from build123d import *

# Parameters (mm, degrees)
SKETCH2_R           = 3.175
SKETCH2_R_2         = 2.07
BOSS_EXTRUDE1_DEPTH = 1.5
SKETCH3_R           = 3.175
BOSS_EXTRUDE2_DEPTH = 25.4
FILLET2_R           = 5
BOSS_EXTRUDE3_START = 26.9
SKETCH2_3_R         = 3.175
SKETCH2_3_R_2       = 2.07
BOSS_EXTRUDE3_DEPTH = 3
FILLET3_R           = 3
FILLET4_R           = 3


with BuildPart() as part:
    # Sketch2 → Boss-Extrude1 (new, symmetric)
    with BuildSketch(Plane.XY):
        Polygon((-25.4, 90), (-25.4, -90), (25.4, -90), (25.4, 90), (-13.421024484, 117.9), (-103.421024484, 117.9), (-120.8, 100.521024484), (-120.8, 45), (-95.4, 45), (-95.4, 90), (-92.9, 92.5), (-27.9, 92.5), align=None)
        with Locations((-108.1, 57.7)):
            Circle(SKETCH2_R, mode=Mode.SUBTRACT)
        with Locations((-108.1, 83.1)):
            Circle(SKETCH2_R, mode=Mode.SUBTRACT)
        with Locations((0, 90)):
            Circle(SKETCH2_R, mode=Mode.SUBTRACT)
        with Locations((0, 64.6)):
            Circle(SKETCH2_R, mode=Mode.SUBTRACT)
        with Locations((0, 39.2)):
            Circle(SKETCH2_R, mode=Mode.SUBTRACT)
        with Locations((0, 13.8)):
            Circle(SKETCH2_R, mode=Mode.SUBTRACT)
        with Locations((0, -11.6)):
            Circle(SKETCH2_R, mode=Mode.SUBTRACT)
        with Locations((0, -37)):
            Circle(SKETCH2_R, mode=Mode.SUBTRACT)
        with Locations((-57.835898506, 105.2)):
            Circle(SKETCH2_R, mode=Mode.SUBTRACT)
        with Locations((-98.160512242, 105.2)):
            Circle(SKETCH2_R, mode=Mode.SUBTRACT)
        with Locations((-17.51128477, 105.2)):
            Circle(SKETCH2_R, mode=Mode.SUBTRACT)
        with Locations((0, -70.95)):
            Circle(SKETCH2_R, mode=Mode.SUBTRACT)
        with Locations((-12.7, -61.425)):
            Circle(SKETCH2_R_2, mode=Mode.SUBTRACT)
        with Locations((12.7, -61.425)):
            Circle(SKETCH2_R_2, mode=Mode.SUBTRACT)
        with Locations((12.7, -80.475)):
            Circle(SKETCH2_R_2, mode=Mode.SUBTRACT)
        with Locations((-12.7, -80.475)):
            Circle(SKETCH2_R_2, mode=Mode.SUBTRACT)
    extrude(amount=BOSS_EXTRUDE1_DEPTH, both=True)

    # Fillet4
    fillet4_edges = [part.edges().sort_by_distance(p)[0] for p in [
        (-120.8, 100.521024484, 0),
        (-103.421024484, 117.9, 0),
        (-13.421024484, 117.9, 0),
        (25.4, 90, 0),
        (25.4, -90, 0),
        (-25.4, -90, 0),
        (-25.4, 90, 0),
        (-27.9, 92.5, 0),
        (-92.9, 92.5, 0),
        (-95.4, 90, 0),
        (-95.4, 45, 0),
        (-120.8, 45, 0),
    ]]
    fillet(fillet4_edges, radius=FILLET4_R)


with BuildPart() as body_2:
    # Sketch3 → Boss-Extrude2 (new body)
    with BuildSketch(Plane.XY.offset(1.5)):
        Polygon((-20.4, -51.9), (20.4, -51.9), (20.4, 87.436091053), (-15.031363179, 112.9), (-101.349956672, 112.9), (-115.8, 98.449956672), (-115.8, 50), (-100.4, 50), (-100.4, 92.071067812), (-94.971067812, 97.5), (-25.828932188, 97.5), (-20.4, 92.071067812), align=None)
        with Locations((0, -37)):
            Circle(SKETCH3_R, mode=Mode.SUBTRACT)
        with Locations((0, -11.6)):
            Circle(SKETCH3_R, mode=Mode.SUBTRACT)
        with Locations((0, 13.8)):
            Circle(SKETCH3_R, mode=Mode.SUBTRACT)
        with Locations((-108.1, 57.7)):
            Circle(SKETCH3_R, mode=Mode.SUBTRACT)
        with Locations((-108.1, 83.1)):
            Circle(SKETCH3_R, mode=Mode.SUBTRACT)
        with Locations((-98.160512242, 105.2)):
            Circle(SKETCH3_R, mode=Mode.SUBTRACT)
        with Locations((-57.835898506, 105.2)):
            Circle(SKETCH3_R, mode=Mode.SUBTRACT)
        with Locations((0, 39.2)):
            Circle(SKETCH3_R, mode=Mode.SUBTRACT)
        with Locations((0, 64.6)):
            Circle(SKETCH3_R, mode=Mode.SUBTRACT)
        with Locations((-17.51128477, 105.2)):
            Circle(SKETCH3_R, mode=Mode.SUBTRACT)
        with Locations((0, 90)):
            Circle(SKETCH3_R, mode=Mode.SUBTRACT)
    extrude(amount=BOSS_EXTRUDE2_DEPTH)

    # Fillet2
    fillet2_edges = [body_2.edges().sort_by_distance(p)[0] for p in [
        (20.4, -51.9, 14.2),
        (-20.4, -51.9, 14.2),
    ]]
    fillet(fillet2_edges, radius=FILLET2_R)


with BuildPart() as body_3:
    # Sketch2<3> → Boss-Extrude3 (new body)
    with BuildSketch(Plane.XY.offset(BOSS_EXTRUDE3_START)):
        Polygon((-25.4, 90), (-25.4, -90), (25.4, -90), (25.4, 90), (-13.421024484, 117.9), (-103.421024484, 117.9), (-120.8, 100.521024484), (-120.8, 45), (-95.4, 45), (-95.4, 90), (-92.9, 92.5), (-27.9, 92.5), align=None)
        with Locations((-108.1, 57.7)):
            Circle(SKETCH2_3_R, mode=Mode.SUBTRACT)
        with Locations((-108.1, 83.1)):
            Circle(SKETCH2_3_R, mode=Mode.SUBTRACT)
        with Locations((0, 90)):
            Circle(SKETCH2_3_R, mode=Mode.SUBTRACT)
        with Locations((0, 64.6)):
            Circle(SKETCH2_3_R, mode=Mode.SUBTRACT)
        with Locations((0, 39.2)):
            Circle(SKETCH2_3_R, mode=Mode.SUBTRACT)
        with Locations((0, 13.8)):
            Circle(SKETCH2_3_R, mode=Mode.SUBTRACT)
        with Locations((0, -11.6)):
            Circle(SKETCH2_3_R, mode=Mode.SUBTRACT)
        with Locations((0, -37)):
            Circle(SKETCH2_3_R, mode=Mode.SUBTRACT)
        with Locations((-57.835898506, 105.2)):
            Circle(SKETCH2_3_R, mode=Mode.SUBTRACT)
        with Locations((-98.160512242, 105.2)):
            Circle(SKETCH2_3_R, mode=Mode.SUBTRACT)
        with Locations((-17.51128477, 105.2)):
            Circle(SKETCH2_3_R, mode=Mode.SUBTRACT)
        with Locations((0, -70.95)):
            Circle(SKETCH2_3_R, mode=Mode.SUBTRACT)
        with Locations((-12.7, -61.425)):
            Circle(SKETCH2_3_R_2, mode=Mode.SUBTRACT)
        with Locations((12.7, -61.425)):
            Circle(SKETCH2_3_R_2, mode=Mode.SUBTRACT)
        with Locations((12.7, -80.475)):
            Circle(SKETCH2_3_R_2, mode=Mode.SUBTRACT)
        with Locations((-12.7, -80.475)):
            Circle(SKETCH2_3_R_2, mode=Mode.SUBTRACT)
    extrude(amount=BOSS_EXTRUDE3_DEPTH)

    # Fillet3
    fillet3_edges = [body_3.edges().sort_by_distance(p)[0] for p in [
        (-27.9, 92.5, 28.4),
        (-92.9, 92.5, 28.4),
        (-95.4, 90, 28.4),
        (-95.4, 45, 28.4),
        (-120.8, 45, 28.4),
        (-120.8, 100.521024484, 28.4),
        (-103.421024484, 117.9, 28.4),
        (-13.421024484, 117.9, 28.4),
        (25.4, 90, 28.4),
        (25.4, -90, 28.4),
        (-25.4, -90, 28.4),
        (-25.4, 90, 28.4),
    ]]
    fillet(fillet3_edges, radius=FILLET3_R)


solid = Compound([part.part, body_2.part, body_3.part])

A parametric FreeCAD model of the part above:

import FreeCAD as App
import Part
import Sketcher


def edges_at(feature, points):
    """Names of the edges that pass closest to the given points."""
    edges = feature.Shape.Edges
    near = lambda p: min(range(len(edges)), key=lambda i: edges[i].distToShape(Part.Vertex(*p))[0])
    return sorted({f"Edge{near(p) + 1}" for p in points})


def add_polygon(sketch, points):
    """Adds a closed chain of lines whose ends are joined by coincident constraints."""
    first, n = sketch.GeometryCount, len(points)
    for a, b in zip(points, points[1:] + points[:1]):
        sketch.addGeometry(Part.LineSegment(App.Vector(*a, 0), App.Vector(*b, 0)), False)
    for i in range(n):
        sketch.addConstraint(Sketcher.Constraint("Coincident", first + i, 2, first + (i + 1) % n, 1))

doc = App.newDocument("Part")
body = doc.addObject("PartDesign::Body", "Body")

# Sketch on XY plane
sketch1 = body.newObject("Sketcher::SketchObject", "Sketch")
sketch1.AttachmentSupport = (doc.getObject("XY_Plane"), [""])
sketch1.MapMode = "FlatFace"
add_polygon(sketch1, [(-25.4, 90), (-25.4, -90), (25.4, -90), (25.4, 90), (-13.4, 117.9), (-103.4, 117.9), (-120.8, 100.5), (-120.8, 45), (-95.4, 45), (-95.4, 90), (-92.9, 92.5), (-27.9, 92.5)])  # lines 0-11
sketch1.addGeometry(Part.Circle(App.Vector(-12.7, -80.5, 0), App.Vector(0, 0, 1), 2.1), False)  # 12
sketch1.addGeometry(Part.Circle(App.Vector(-12.7, -61.4, 0), App.Vector(0, 0, 1), 2.1), False)  # 13
sketch1.addGeometry(Part.Circle(App.Vector(0, -71, 0), App.Vector(0, 0, 1), 3.2), False)  # 14
sketch1.addGeometry(Part.Circle(App.Vector(12.7, -80.5, 0), App.Vector(0, 0, 1), 2.1), False)  # 15
sketch1.addGeometry(Part.Circle(App.Vector(12.7, -61.4, 0), App.Vector(0, 0, 1), 2.1), False)  # 16
sketch1.addGeometry(Part.Circle(App.Vector(0, -37, 0), App.Vector(0, 0, 1), 3.2), False)  # 17
sketch1.addGeometry(Part.Circle(App.Vector(0, -11.6, 0), App.Vector(0, 0, 1), 3.2), False)  # 18
sketch1.addGeometry(Part.Circle(App.Vector(-108.1, 57.7, 0), App.Vector(0, 0, 1), 3.2), False)  # 19
sketch1.addGeometry(Part.Circle(App.Vector(-108.1, 83.1, 0), App.Vector(0, 0, 1), 3.2), False)  # 20
sketch1.addGeometry(Part.Circle(App.Vector(-98.2, 105.2, 0), App.Vector(0, 0, 1), 3.2), False)  # 21
sketch1.addGeometry(Part.Circle(App.Vector(-57.8, 105.2, 0), App.Vector(0, 0, 1), 3.2), False)  # 22
sketch1.addGeometry(Part.Circle(App.Vector(0, 13.8, 0), App.Vector(0, 0, 1), 3.2), False)  # 23
sketch1.addGeometry(Part.Circle(App.Vector(0, 39.2, 0), App.Vector(0, 0, 1), 3.2), False)  # 24
sketch1.addGeometry(Part.Circle(App.Vector(-17.5, 105.2, 0), App.Vector(0, 0, 1), 3.2), False)  # 25
sketch1.addGeometry(Part.Circle(App.Vector(0, 64.6, 0), App.Vector(0, 0, 1), 3.2), False)  # 26
sketch1.addGeometry(Part.Circle(App.Vector(0, 90, 0), App.Vector(0, 0, 1), 3.2), False)  # 27
sketch1.addConstraint(Sketcher.Constraint("Vertical", 0))
sketch1.addConstraint(Sketcher.Constraint("Horizontal", 1))
sketch1.addConstraint(Sketcher.Constraint("Vertical", 2))
sketch1.addConstraint(Sketcher.Constraint("Horizontal", 4))
sketch1.addConstraint(Sketcher.Constraint("Vertical", 6))
sketch1.addConstraint(Sketcher.Constraint("Horizontal", 7))
sketch1.addConstraint(Sketcher.Constraint("Vertical", 8))
sketch1.addConstraint(Sketcher.Constraint("Horizontal", 10))
sketch1.addConstraint(Sketcher.Constraint("Equal", 12, 13))
sketch1.addConstraint(Sketcher.Constraint("Equal", 13, 15))
sketch1.addConstraint(Sketcher.Constraint("Equal", 15, 16))
sketch1.addConstraint(Sketcher.Constraint("Equal", 14, 17))
sketch1.addConstraint(Sketcher.Constraint("Equal", 17, 18))
sketch1.addConstraint(Sketcher.Constraint("Equal", 18, 19))
sketch1.addConstraint(Sketcher.Constraint("Equal", 19, 20))
sketch1.addConstraint(Sketcher.Constraint("Equal", 20, 21))
sketch1.addConstraint(Sketcher.Constraint("Equal", 21, 22))
sketch1.addConstraint(Sketcher.Constraint("Equal", 22, 23))
sketch1.addConstraint(Sketcher.Constraint("Equal", 23, 24))
sketch1.addConstraint(Sketcher.Constraint("Equal", 24, 25))
sketch1.addConstraint(Sketcher.Constraint("Equal", 25, 26))
sketch1.addConstraint(Sketcher.Constraint("Equal", 26, 27))
sketch1.addConstraint(Sketcher.Constraint("Symmetric", 0, 2, 2, 2, -1, 1))
sketch1.addConstraint(Sketcher.Constraint("Symmetric", 12, 3, 15, 3, -2))
sketch1.addConstraint(Sketcher.Constraint("Symmetric", 13, 3, 16, 3, -2))
sketch1.addConstraint(Sketcher.Constraint("PointOnObject", 14, 3, -2))
sketch1.addConstraint(Sketcher.Constraint("PointOnObject", 17, 3, -2))
sketch1.addConstraint(Sketcher.Constraint("PointOnObject", 18, 3, -2))
sketch1.addConstraint(Sketcher.Constraint("PointOnObject", 23, 3, -2))
sketch1.addConstraint(Sketcher.Constraint("PointOnObject", 24, 3, -2))
sketch1.addConstraint(Sketcher.Constraint("PointOnObject", 26, 3, -2))
sketch1.addConstraint(Sketcher.Constraint("PointOnObject", 27, 3, -2))
sketch1.addConstraint(Sketcher.Constraint("Parallel", 5, 9))
sketch1.addConstraint(Sketcher.Constraint("Perpendicular", 9, 11))
sketch1.addConstraint(Sketcher.Constraint("Horizontal", 21, 3, 22, 3))
sketch1.addConstraint(Sketcher.Constraint("Horizontal", 22, 3, 25, 3))
sketch1.addConstraint(Sketcher.Constraint("Horizontal", 27, 3, 2, 2))
sketch1.addConstraint(Sketcher.Constraint("Horizontal", 2, 2, 8, 2))
sketch1.addConstraint(Sketcher.Constraint("Horizontal", 8, 2, 11, 2))
sketch1.addConstraint(Sketcher.Constraint("Vertical", 12, 3, 13, 3))
sketch1.addConstraint(Sketcher.Constraint("Vertical", 19, 3, 20, 3))
sketch1.addConstraint(Sketcher.Constraint("Equal", 9, 11))
sketch1.addConstraint(Sketcher.Constraint("Diameter", 12, 4.14))
sketch1.addConstraint(Sketcher.Constraint("Diameter", 14, 6.35))
sketch1.addConstraint(Sketcher.Constraint("DistanceX", 4, 2, 4, 1, 90.0))
sketch1.addConstraint(Sketcher.Constraint("DistanceX", 10, 1, 10, 2, 65.0))
sketch1.addConstraint(Sketcher.Constraint("DistanceY", 0, 2, 0, 1, 180.0))
sketch1.addConstraint(Sketcher.Constraint("DistanceY", 8, 1, 8, 2, 45.0))
sketch1.addConstraint(Sketcher.Constraint("DistanceX", 1, 1, 1, 2, 50.8))
sketch1.addConstraint(Sketcher.Constraint("DistanceX", 7, 1, 7, 2, 25.4))
sketch1.addConstraint(Sketcher.Constraint("DistanceY", 17, 3, -1, 1, 37.0))
sketch1.addConstraint(Sketcher.Constraint("DistanceY", 24, 3, 22, 3, 66.0))
sketch1.addConstraint(Sketcher.Constraint("DistanceX", 12, 3, -1, 1, 12.7))
sketch1.addConstraint(Sketcher.Constraint("DistanceY", 18, 3, -1, 1, 11.6))
sketch1.addConstraint(Sketcher.Constraint("DistanceX", 19, 3, -1, 1, 108.1))
sketch1.addConstraint(Sketcher.Constraint("DistanceY", -1, 1, 19, 3, 57.7))
sketch1.addConstraint(Sketcher.Constraint("DistanceY", -1, 1, 20, 3, 83.1))
sketch1.addConstraint(Sketcher.Constraint("DistanceY", -1, 1, 21, 3, 105.2))
sketch1.addConstraint(Sketcher.Constraint("DistanceY", -1, 1, 23, 3, 13.8))
sketch1.addConstraint(Sketcher.Constraint("DistanceY", -1, 1, 26, 3, 64.6))
sketch1.addConstraint(Sketcher.Constraint("DistanceY", -1, 1, 3, 2, 117.9))
sketch1.addConstraint(Sketcher.Constraint("DistanceX", 5, 2, -1, 1, 120.8))
sketch1.addConstraint(Sketcher.Constraint("DistanceY", 14, 3, -1, 1, 70.95))
sketch1.addConstraint(Sketcher.Constraint("DistanceY", 12, 3, 13, 3, 19.05))
sketch1.addConstraint(Sketcher.Constraint("DistanceY", 12, 3, -1, 1, 80.475))
sketch1.addConstraint(Sketcher.Constraint("DistanceX", 22, 3, -1, 1, 57.835899))
sketch1.addConstraint(Sketcher.Constraint("DistanceY", 6, 2, 6, 1, 55.521024))
sketch1.addConstraint(Sketcher.Constraint("DistanceX", 25, 3, 3, 2, 4.09026))
sketch1.addConstraint(Sketcher.Constraint("DistanceX", 21, 3, -1, 1, 98.160512))
pad1 = body.newObject("PartDesign::Pad", "Pad")
pad1.Profile = sketch1
pad1.Length = 3
pad1.Midplane = True
doc.recompute()

fillet = body.newObject("PartDesign::Fillet", "Fillet")
fillet.Base = (pad1, edges_at(pad1, [
    (-120.8, 100.521, 0),
    (-103.421, 117.9, 0),
    (-13.421, 117.9, 0),
    (25.4, 90, 0),
    (25.4, -90, 0),
    (-25.4, -90, 0),
    (-25.4, 90, 0),
    (-27.9, 92.5, 0),
    (-92.9, 92.5, 0),
    (-95.4, 90, 0),
    (-95.4, 45, 0),
    (-120.8, 45, 0),
]))
fillet.Radius = 3
body2 = doc.addObject("PartDesign::Body", "Body001")

# Sketch on XY plane
sketch2 = body2.newObject("Sketcher::SketchObject", "Sketch001")
sketch2.AttachmentSupport = (doc.getObject("XY_Plane001"), [""])
sketch2.MapMode = "FlatFace"
sketch2.AttachmentOffset = App.Placement(App.Vector(0, 0, 1.5), App.Rotation())
add_polygon(sketch2, [(-20.4, -51.9), (20.4, -51.9), (20.4, 87.4), (-15, 112.9), (-101.3, 112.9), (-115.8, 98.4), (-115.8, 50), (-100.4, 50), (-100.4, 92.1), (-95, 97.5), (-25.8, 97.5), (-20.4, 92.1)])  # lines 0-11
sketch2.addGeometry(Part.Circle(App.Vector(0, -37, 0), App.Vector(0, 0, 1), 3.2), False)  # 12
sketch2.addGeometry(Part.Circle(App.Vector(0, -11.6, 0), App.Vector(0, 0, 1), 3.2), False)  # 13
sketch2.addGeometry(Part.Circle(App.Vector(0, 13.8, 0), App.Vector(0, 0, 1), 3.2), False)  # 14
sketch2.addGeometry(Part.Circle(App.Vector(-108.1, 57.7, 0), App.Vector(0, 0, 1), 3.2), False)  # 15
sketch2.addGeometry(Part.Circle(App.Vector(-108.1, 83.1, 0), App.Vector(0, 0, 1), 3.2), False)  # 16
sketch2.addGeometry(Part.Circle(App.Vector(-98.2, 105.2, 0), App.Vector(0, 0, 1), 3.2), False)  # 17
sketch2.addGeometry(Part.Circle(App.Vector(-57.8, 105.2, 0), App.Vector(0, 0, 1), 3.2), False)  # 18
sketch2.addGeometry(Part.Circle(App.Vector(0, 39.2, 0), App.Vector(0, 0, 1), 3.2), False)  # 19
sketch2.addGeometry(Part.Circle(App.Vector(0, 64.6, 0), App.Vector(0, 0, 1), 3.2), False)  # 20
sketch2.addGeometry(Part.Circle(App.Vector(-17.5, 105.2, 0), App.Vector(0, 0, 1), 3.2), False)  # 21
sketch2.addGeometry(Part.Circle(App.Vector(0, 90, 0), App.Vector(0, 0, 1), 3.2), False)  # 22
sketch2.addConstraint(Sketcher.Constraint("Horizontal", 0))
sketch2.addConstraint(Sketcher.Constraint("Vertical", 1))
sketch2.addConstraint(Sketcher.Constraint("Horizontal", 3))
sketch2.addConstraint(Sketcher.Constraint("Vertical", 5))
sketch2.addConstraint(Sketcher.Constraint("Horizontal", 6))
sketch2.addConstraint(Sketcher.Constraint("Vertical", 7))
sketch2.addConstraint(Sketcher.Constraint("Horizontal", 9))
sketch2.addConstraint(Sketcher.Constraint("Vertical", 11))
sketch2.addConstraint(Sketcher.Constraint("Equal", 12, 13))
sketch2.addConstraint(Sketcher.Constraint("Equal", 13, 14))
sketch2.addConstraint(Sketcher.Constraint("Equal", 14, 15))
sketch2.addConstraint(Sketcher.Constraint("Equal", 15, 16))
sketch2.addConstraint(Sketcher.Constraint("Equal", 16, 17))
sketch2.addConstraint(Sketcher.Constraint("Equal", 17, 18))
sketch2.addConstraint(Sketcher.Constraint("Equal", 18, 19))
sketch2.addConstraint(Sketcher.Constraint("Equal", 19, 20))
sketch2.addConstraint(Sketcher.Constraint("Equal", 20, 21))
sketch2.addConstraint(Sketcher.Constraint("Equal", 21, 22))
sketch2.addConstraint(Sketcher.Constraint("PointOnObject", 12, 3, -2))
sketch2.addConstraint(Sketcher.Constraint("PointOnObject", 13, 3, -2))
sketch2.addConstraint(Sketcher.Constraint("PointOnObject", 14, 3, -2))
sketch2.addConstraint(Sketcher.Constraint("PointOnObject", 19, 3, -2))
sketch2.addConstraint(Sketcher.Constraint("PointOnObject", 20, 3, -2))
sketch2.addConstraint(Sketcher.Constraint("PointOnObject", 22, 3, -2))
sketch2.addConstraint(Sketcher.Constraint("Parallel", 4, 8))
sketch2.addConstraint(Sketcher.Constraint("Perpendicular", 8, 10))
sketch2.addConstraint(Sketcher.Constraint("Horizontal", 17, 3, 18, 3))
sketch2.addConstraint(Sketcher.Constraint("Horizontal", 18, 3, 21, 3))
sketch2.addConstraint(Sketcher.Constraint("Horizontal", 7, 2, 10, 2))
sketch2.addConstraint(Sketcher.Constraint("Vertical", 15, 3, 16, 3))
sketch2.addConstraint(Sketcher.Constraint("Equal", 8, 10))
sketch2.addConstraint(Sketcher.Constraint("Diameter", 12, 6.35))
sketch2.addConstraint(Sketcher.Constraint("DistanceX", 0, 1, 0, 2, 40.8))
sketch2.addConstraint(Sketcher.Constraint("DistanceX", 6, 1, 6, 2, 15.4))
sketch2.addConstraint(Sketcher.Constraint("DistanceY", 12, 3, -1, 1, 37.0))
sketch2.addConstraint(Sketcher.Constraint("DistanceY", -1, 1, 22, 3, 90.0))
sketch2.addConstraint(Sketcher.Constraint("DistanceY", -1, 1, 5, 2, 50.0))
sketch2.addConstraint(Sketcher.Constraint("DistanceY", 19, 3, 18, 3, 66.0))
sketch2.addConstraint(Sketcher.Constraint("DistanceY", 13, 3, -1, 1, 11.6))
sketch2.addConstraint(Sketcher.Constraint("DistanceY", -1, 1, 14, 3, 13.8))
sketch2.addConstraint(Sketcher.Constraint("DistanceX", 15, 3, -1, 1, 108.1))
sketch2.addConstraint(Sketcher.Constraint("DistanceY", -1, 1, 15, 3, 57.7))
sketch2.addConstraint(Sketcher.Constraint("DistanceY", -1, 1, 16, 3, 83.1))
sketch2.addConstraint(Sketcher.Constraint("DistanceY", -1, 1, 17, 3, 105.2))
sketch2.addConstraint(Sketcher.Constraint("DistanceY", -1, 1, 20, 3, 64.6))
sketch2.addConstraint(Sketcher.Constraint("DistanceX", -1, 1, 0, 2, 20.4))
sketch2.addConstraint(Sketcher.Constraint("DistanceY", 0, 2, -1, 1, 51.9))
sketch2.addConstraint(Sketcher.Constraint("DistanceY", -1, 1, 2, 2, 112.9))
sketch2.addConstraint(Sketcher.Constraint("DistanceX", 4, 2, -1, 1, 115.8))
sketch2.addConstraint(Sketcher.Constraint("DistanceY", -1, 1, 8, 2, 97.5))
sketch2.addConstraint(Sketcher.Constraint("DistanceY", 1, 1, 1, 2, 139.336091))
sketch2.addConstraint(Sketcher.Constraint("DistanceX", 18, 3, -1, 1, 57.835899))
sketch2.addConstraint(Sketcher.Constraint("Distance", 8, 7.67767))
sketch2.addConstraint(Sketcher.Constraint("DistanceX", 3, 2, 3, 1, 86.318593))
sketch2.addConstraint(Sketcher.Constraint("DistanceY", 5, 2, 5, 1, 48.449957))
sketch2.addConstraint(Sketcher.Constraint("DistanceX", 21, 3, 2, 2, 2.479922))
sketch2.addConstraint(Sketcher.Constraint("DistanceX", 17, 3, -1, 1, 98.160512))
pad2 = body2.newObject("PartDesign::Pad", "Pad001")
pad2.Profile = sketch2
pad2.Length = 25.4
doc.recompute()

fillet2 = body2.newObject("PartDesign::Fillet", "Fillet001")
fillet2.Base = (pad2, edges_at(pad2, [(20.4, -51.9, 14.2), (-20.4, -51.9, 14.2)]))
fillet2.Radius = 5
body3 = doc.addObject("PartDesign::Body", "Body002")

# Sketch on XY plane
sketch3 = body3.newObject("Sketcher::SketchObject", "Sketch002")
sketch3.AttachmentSupport = (doc.getObject("XY_Plane002"), [""])
sketch3.MapMode = "FlatFace"
sketch3.AttachmentOffset = App.Placement(App.Vector(0, 0, 26.9), App.Rotation())
add_polygon(sketch3, [(-25.4, 90), (-25.4, -90), (25.4, -90), (25.4, 90), (-13.4, 117.9), (-103.4, 117.9), (-120.8, 100.5), (-120.8, 45), (-95.4, 45), (-95.4, 90), (-92.9, 92.5), (-27.9, 92.5)])  # lines 0-11
sketch3.addGeometry(Part.Circle(App.Vector(-12.7, -80.5, 0), App.Vector(0, 0, 1), 2.1), False)  # 12
sketch3.addGeometry(Part.Circle(App.Vector(-12.7, -61.4, 0), App.Vector(0, 0, 1), 2.1), False)  # 13
sketch3.addGeometry(Part.Circle(App.Vector(0, -71, 0), App.Vector(0, 0, 1), 3.2), False)  # 14
sketch3.addGeometry(Part.Circle(App.Vector(12.7, -80.5, 0), App.Vector(0, 0, 1), 2.1), False)  # 15
sketch3.addGeometry(Part.Circle(App.Vector(12.7, -61.4, 0), App.Vector(0, 0, 1), 2.1), False)  # 16
sketch3.addGeometry(Part.Circle(App.Vector(0, -37, 0), App.Vector(0, 0, 1), 3.2), False)  # 17
sketch3.addGeometry(Part.Circle(App.Vector(0, -11.6, 0), App.Vector(0, 0, 1), 3.2), False)  # 18
sketch3.addGeometry(Part.Circle(App.Vector(-108.1, 57.7, 0), App.Vector(0, 0, 1), 3.2), False)  # 19
sketch3.addGeometry(Part.Circle(App.Vector(-108.1, 83.1, 0), App.Vector(0, 0, 1), 3.2), False)  # 20
sketch3.addGeometry(Part.Circle(App.Vector(-98.2, 105.2, 0), App.Vector(0, 0, 1), 3.2), False)  # 21
sketch3.addGeometry(Part.Circle(App.Vector(-57.8, 105.2, 0), App.Vector(0, 0, 1), 3.2), False)  # 22
sketch3.addGeometry(Part.Circle(App.Vector(0, 13.8, 0), App.Vector(0, 0, 1), 3.2), False)  # 23
sketch3.addGeometry(Part.Circle(App.Vector(0, 39.2, 0), App.Vector(0, 0, 1), 3.2), False)  # 24
sketch3.addGeometry(Part.Circle(App.Vector(-17.5, 105.2, 0), App.Vector(0, 0, 1), 3.2), False)  # 25
sketch3.addGeometry(Part.Circle(App.Vector(0, 64.6, 0), App.Vector(0, 0, 1), 3.2), False)  # 26
sketch3.addGeometry(Part.Circle(App.Vector(0, 90, 0), App.Vector(0, 0, 1), 3.2), False)  # 27
sketch3.addConstraint(Sketcher.Constraint("Vertical", 0))
sketch3.addConstraint(Sketcher.Constraint("Horizontal", 1))
sketch3.addConstraint(Sketcher.Constraint("Vertical", 2))
sketch3.addConstraint(Sketcher.Constraint("Horizontal", 4))
sketch3.addConstraint(Sketcher.Constraint("Vertical", 6))
sketch3.addConstraint(Sketcher.Constraint("Horizontal", 7))
sketch3.addConstraint(Sketcher.Constraint("Vertical", 8))
sketch3.addConstraint(Sketcher.Constraint("Horizontal", 10))
sketch3.addConstraint(Sketcher.Constraint("Equal", 12, 13))
sketch3.addConstraint(Sketcher.Constraint("Equal", 13, 15))
sketch3.addConstraint(Sketcher.Constraint("Equal", 15, 16))
sketch3.addConstraint(Sketcher.Constraint("Equal", 14, 17))
sketch3.addConstraint(Sketcher.Constraint("Equal", 17, 18))
sketch3.addConstraint(Sketcher.Constraint("Equal", 18, 19))
sketch3.addConstraint(Sketcher.Constraint("Equal", 19, 20))
sketch3.addConstraint(Sketcher.Constraint("Equal", 20, 21))
sketch3.addConstraint(Sketcher.Constraint("Equal", 21, 22))
sketch3.addConstraint(Sketcher.Constraint("Equal", 22, 23))
sketch3.addConstraint(Sketcher.Constraint("Equal", 23, 24))
sketch3.addConstraint(Sketcher.Constraint("Equal", 24, 25))
sketch3.addConstraint(Sketcher.Constraint("Equal", 25, 26))
sketch3.addConstraint(Sketcher.Constraint("Equal", 26, 27))
sketch3.addConstraint(Sketcher.Constraint("Symmetric", 0, 2, 2, 2, -1, 1))
sketch3.addConstraint(Sketcher.Constraint("Symmetric", 12, 3, 15, 3, -2))
sketch3.addConstraint(Sketcher.Constraint("Symmetric", 13, 3, 16, 3, -2))
sketch3.addConstraint(Sketcher.Constraint("PointOnObject", 14, 3, -2))
sketch3.addConstraint(Sketcher.Constraint("PointOnObject", 17, 3, -2))
sketch3.addConstraint(Sketcher.Constraint("PointOnObject", 18, 3, -2))
sketch3.addConstraint(Sketcher.Constraint("PointOnObject", 23, 3, -2))
sketch3.addConstraint(Sketcher.Constraint("PointOnObject", 24, 3, -2))
sketch3.addConstraint(Sketcher.Constraint("PointOnObject", 26, 3, -2))
sketch3.addConstraint(Sketcher.Constraint("PointOnObject", 27, 3, -2))
sketch3.addConstraint(Sketcher.Constraint("Parallel", 5, 9))
sketch3.addConstraint(Sketcher.Constraint("Perpendicular", 9, 11))
sketch3.addConstraint(Sketcher.Constraint("Horizontal", 21, 3, 22, 3))
sketch3.addConstraint(Sketcher.Constraint("Horizontal", 22, 3, 25, 3))
sketch3.addConstraint(Sketcher.Constraint("Horizontal", 27, 3, 2, 2))
sketch3.addConstraint(Sketcher.Constraint("Horizontal", 2, 2, 8, 2))
sketch3.addConstraint(Sketcher.Constraint("Horizontal", 8, 2, 11, 2))
sketch3.addConstraint(Sketcher.Constraint("Vertical", 12, 3, 13, 3))
sketch3.addConstraint(Sketcher.Constraint("Vertical", 19, 3, 20, 3))
sketch3.addConstraint(Sketcher.Constraint("Equal", 9, 11))
sketch3.addConstraint(Sketcher.Constraint("Diameter", 12, 4.14))
sketch3.addConstraint(Sketcher.Constraint("Diameter", 14, 6.35))
sketch3.addConstraint(Sketcher.Constraint("DistanceX", 4, 2, 4, 1, 90.0))
sketch3.addConstraint(Sketcher.Constraint("DistanceX", 10, 1, 10, 2, 65.0))
sketch3.addConstraint(Sketcher.Constraint("DistanceY", 0, 2, 0, 1, 180.0))
sketch3.addConstraint(Sketcher.Constraint("DistanceY", 8, 1, 8, 2, 45.0))
sketch3.addConstraint(Sketcher.Constraint("DistanceX", 1, 1, 1, 2, 50.8))
sketch3.addConstraint(Sketcher.Constraint("DistanceX", 7, 1, 7, 2, 25.4))
sketch3.addConstraint(Sketcher.Constraint("DistanceY", 17, 3, -1, 1, 37.0))
sketch3.addConstraint(Sketcher.Constraint("DistanceY", 24, 3, 22, 3, 66.0))
sketch3.addConstraint(Sketcher.Constraint("DistanceX", 12, 3, -1, 1, 12.7))
sketch3.addConstraint(Sketcher.Constraint("DistanceY", 18, 3, -1, 1, 11.6))
sketch3.addConstraint(Sketcher.Constraint("DistanceX", 19, 3, -1, 1, 108.1))
sketch3.addConstraint(Sketcher.Constraint("DistanceY", -1, 1, 19, 3, 57.7))
sketch3.addConstraint(Sketcher.Constraint("DistanceY", -1, 1, 20, 3, 83.1))
sketch3.addConstraint(Sketcher.Constraint("DistanceY", -1, 1, 21, 3, 105.2))
sketch3.addConstraint(Sketcher.Constraint("DistanceY", -1, 1, 23, 3, 13.8))
sketch3.addConstraint(Sketcher.Constraint("DistanceY", -1, 1, 26, 3, 64.6))
sketch3.addConstraint(Sketcher.Constraint("DistanceY", -1, 1, 3, 2, 117.9))
sketch3.addConstraint(Sketcher.Constraint("DistanceX", 5, 2, -1, 1, 120.8))
sketch3.addConstraint(Sketcher.Constraint("DistanceY", 14, 3, -1, 1, 70.95))
sketch3.addConstraint(Sketcher.Constraint("DistanceY", 12, 3, 13, 3, 19.05))
sketch3.addConstraint(Sketcher.Constraint("DistanceY", 12, 3, -1, 1, 80.475))
sketch3.addConstraint(Sketcher.Constraint("DistanceX", 22, 3, -1, 1, 57.835899))
sketch3.addConstraint(Sketcher.Constraint("DistanceY", 6, 2, 6, 1, 55.521024))
sketch3.addConstraint(Sketcher.Constraint("DistanceX", 25, 3, 3, 2, 4.09026))
sketch3.addConstraint(Sketcher.Constraint("DistanceX", 21, 3, -1, 1, 98.160512))
pad3 = body3.newObject("PartDesign::Pad", "Pad002")
pad3.Profile = sketch3
pad3.Length = 3
doc.recompute()

fillet3 = body3.newObject("PartDesign::Fillet", "Fillet002")
fillet3.Base = (pad3, edges_at(pad3, [
    (-27.9, 92.5, 28.4),
    (-92.9, 92.5, 28.4),
    (-95.4, 90, 28.4),
    (-95.4, 45, 28.4),
    (-120.8, 45, 28.4),
    (-120.8, 100.521, 28.4),
    (-103.421, 117.9, 28.4),
    (-13.421, 117.9, 28.4),
    (25.4, 90, 28.4),
    (25.4, -90, 28.4),
    (-25.4, -90, 28.4),
    (-25.4, 90, 28.4),
]))
fillet3.Radius = 3

doc.recompute()
